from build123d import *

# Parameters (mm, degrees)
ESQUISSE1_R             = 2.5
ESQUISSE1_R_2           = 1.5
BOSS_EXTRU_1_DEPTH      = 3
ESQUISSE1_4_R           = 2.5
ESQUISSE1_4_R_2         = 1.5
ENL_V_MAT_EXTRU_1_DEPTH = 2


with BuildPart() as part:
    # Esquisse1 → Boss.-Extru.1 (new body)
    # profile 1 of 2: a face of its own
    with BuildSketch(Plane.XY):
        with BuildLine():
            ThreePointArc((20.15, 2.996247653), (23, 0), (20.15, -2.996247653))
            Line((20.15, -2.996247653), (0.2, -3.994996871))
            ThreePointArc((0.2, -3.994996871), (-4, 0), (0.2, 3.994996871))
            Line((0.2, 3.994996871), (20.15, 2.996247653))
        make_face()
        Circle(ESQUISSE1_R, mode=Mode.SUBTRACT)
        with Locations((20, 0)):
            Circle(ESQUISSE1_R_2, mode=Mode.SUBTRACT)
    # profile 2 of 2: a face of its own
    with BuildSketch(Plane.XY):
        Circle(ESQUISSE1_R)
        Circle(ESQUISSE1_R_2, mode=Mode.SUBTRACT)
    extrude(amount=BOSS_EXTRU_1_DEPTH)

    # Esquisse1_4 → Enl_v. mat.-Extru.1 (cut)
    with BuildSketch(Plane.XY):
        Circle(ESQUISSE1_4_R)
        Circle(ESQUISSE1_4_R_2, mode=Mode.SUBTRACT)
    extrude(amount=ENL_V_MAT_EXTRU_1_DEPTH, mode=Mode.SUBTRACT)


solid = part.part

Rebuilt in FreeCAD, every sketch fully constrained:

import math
import FreeCAD as App
import Part
import Sketcher
Q = App.Units.Quantity

doc = App.newDocument("Part")
body = doc.addObject("PartDesign::Body", "Body")

# Sketch on XY plane
sketch1 = body.newObject("Sketcher::SketchObject", "Sketch")
sketch1.AttachmentSupport = (doc.getObject("XY_Plane"), [""])
sketch1.MapMode = "FlatFace"
sketch1.addGeometry([
    Part.ArcOfCircle(Part.Circle(App.Vector(20, 0, 0), App.Vector(0, 0, 1), 3), math.radians(-87), math.radians(87)),  # 0
    Part.LineSegment(App.Vector(20.1, 3, 0), App.Vector(0.2, 4, 0)),  # 1
    Part.ArcOfCircle(Part.Circle(App.Vector(0, 0, 0), App.Vector(0, 0, 1), 4), math.radians(87), math.radians(273)),  # 2
    Part.LineSegment(App.Vector(0.2, -4, 0), App.Vector(20.1, -3, 0)),  # 3
    Part.Circle(App.Vector(20, 0, 0), App.Vector(0, 0, 1), 1.5),  # 4
    Part.Circle(App.Vector(0, 0, 0), App.Vector(0, 0, 1), 1.5),  # 5
], False)
sketch1.addConstraint([
    Sketcher.Constraint("Tangent", 0, 2, 1, 1),
    Sketcher.Constraint("Tangent", 1, 2, 2, 1),
    Sketcher.Constraint("Tangent", 2, 2, 3, 1),
    Sketcher.Constraint("Tangent", 3, 2, 0, 1),
    Sketcher.Constraint("Coincident", 2, 3, -1, 1),
    Sketcher.Constraint("Coincident", 5, 3, -1, 1),
    Sketcher.Constraint("Coincident", 4, 3, 0, 3),
    Sketcher.Constraint("Equal", 4, 5),
    Sketcher.Constraint("PointOnObject", 0, 3, -1),
    Sketcher.Constraint("Diameter", 4, Q("3 mm")),
    Sketcher.Constraint("Radius", 0, Q("3 mm")),
    Sketcher.Constraint("Radius", 2, Q("4 mm")),
    Sketcher.Constraint("DistanceX", -1, 1, 0, 3, Q("20 mm")),
])
pad1 = body.newObject("PartDesign::Pad", "Pad")
pad1.Profile = sketch1
pad1.Length = 3

# Sketch on XY plane
sketch2 = body.newObject("Sketcher::SketchObject", "Sketch001")
sketch2.AttachmentSupport = (doc.getObject("XY_Plane"), [""])
sketch2.MapMode = "FlatFace"
sketch2.addGeometry([
    Part.Circle(App.Vector(0, 0, 0), App.Vector(0, 0, 1), 2.5),
    Part.Circle(App.Vector(0, 0, 0), App.Vector(0, 0, 1), 1.5),
], False)
sketch2.addConstraint([
    Sketcher.Constraint("Coincident", 0, 3, -1, 1),
    Sketcher.Constraint("Coincident", 1, 3, -1, 1),
    Sketcher.Constraint("Diameter", 0, Q("5 mm")),
    Sketcher.Constraint("Diameter", 1, Q("3 mm")),
])
pocket1 = body.newObject("PartDesign::Pocket", "Pocket")
pocket1.Profile = sketch2
pocket1.Length = 2
pocket1.Reversed = True

doc.recompute()
